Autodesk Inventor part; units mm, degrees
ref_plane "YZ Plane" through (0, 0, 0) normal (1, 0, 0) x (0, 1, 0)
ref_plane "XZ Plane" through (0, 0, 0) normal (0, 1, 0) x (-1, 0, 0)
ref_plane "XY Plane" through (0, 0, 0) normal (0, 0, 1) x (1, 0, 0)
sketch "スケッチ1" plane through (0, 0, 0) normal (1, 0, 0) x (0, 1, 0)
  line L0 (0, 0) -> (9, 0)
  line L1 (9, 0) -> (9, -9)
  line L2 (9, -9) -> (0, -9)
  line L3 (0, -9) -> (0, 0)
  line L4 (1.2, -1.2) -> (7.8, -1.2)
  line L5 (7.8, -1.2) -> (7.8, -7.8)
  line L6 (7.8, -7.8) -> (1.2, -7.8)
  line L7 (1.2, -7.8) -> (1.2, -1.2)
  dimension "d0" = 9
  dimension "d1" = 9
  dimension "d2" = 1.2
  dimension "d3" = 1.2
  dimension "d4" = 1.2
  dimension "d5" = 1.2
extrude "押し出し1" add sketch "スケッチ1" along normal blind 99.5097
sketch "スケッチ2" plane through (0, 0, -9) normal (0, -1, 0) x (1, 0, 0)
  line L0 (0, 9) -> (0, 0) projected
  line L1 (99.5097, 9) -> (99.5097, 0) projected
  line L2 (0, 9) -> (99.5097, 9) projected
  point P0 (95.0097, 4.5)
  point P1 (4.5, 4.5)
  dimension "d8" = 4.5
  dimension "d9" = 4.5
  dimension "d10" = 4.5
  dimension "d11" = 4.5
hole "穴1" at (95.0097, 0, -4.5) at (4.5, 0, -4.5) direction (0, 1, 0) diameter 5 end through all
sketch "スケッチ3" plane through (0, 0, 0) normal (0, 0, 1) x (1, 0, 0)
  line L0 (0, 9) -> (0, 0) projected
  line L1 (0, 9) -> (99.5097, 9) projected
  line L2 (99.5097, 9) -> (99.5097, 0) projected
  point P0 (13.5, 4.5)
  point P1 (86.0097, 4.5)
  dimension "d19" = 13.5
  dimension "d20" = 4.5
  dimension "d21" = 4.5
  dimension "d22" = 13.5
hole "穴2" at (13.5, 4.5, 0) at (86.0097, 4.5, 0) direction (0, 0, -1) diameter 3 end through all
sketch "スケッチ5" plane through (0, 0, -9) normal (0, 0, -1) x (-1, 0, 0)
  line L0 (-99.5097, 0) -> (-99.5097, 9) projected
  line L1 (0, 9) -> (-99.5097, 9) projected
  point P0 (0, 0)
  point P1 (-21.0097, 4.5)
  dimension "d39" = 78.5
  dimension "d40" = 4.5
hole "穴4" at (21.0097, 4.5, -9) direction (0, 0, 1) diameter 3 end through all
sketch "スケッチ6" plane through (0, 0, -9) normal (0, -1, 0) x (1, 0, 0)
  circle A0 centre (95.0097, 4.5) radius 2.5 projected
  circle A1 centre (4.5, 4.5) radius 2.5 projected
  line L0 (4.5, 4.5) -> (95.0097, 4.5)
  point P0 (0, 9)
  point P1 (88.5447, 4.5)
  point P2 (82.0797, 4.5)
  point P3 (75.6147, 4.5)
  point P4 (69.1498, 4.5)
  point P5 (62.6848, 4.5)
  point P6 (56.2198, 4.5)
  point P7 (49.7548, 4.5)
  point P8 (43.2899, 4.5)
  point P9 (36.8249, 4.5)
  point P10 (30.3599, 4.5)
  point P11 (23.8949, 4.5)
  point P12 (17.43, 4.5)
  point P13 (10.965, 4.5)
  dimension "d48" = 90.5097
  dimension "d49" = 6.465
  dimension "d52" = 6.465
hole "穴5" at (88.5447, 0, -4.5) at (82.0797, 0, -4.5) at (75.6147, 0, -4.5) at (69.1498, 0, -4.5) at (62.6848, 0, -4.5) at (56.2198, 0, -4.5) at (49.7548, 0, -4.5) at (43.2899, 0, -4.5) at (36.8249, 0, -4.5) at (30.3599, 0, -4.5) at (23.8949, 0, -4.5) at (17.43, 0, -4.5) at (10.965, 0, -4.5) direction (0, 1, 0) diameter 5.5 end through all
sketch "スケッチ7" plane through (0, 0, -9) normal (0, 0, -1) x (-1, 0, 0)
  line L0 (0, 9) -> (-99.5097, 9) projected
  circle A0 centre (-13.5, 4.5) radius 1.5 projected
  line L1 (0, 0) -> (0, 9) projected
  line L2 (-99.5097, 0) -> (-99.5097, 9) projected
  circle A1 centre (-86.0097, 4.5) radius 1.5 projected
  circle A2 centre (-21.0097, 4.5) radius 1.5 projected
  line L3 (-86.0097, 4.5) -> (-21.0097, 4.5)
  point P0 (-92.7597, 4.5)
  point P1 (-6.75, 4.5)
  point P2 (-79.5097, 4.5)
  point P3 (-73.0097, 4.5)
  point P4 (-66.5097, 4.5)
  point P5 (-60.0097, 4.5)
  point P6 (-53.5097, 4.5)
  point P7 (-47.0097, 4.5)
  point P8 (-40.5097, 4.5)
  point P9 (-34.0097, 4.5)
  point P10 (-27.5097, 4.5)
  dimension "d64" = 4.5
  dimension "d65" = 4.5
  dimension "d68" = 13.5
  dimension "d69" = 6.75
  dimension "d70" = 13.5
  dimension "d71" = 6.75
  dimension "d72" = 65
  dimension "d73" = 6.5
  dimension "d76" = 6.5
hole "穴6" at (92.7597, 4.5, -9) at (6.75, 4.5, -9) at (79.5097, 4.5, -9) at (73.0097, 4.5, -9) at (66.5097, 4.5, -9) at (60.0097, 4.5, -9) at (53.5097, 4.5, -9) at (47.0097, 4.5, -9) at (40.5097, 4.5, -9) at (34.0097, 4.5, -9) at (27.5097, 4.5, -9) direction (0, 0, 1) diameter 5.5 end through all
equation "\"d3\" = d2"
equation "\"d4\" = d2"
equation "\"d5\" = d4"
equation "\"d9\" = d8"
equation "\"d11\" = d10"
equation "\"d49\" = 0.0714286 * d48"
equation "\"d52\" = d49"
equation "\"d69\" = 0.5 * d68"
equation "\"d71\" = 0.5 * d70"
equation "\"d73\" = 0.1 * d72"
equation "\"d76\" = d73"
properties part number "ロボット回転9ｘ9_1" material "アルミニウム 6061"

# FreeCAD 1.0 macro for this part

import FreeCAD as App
import Part
import Sketcher
from FreeCAD import Vector

doc = App.newDocument("Part")
body = doc.addObject("PartDesign::Body", "Body")

# Sketch on YZ plane
sketch1 = body.newObject("Sketcher::SketchObject", "Sketch")
sketch1.AttachmentSupport = (doc.getObject("YZ_Plane"), [""])
sketch1.MapMode = "FlatFace"
sketch1.addGeometry([
    Part.LineSegment(Vector(9, 0, 0), Vector(0, 0, 0)),  # 0
    Part.LineSegment(Vector(0, 0, 0), Vector(0, -9, 0)),  # 1
    Part.LineSegment(Vector(0, -9, 0), Vector(9, -9, 0)),  # 2
    Part.LineSegment(Vector(9, -9, 0), Vector(9, 0, 0)),  # 3
    Part.LineSegment(Vector(1, -8, 0), Vector(1, -1, 0)),  # 4
    Part.LineSegment(Vector(1, -1, 0), Vector(8, -1, 0)),  # 5
    Part.LineSegment(Vector(8, -1, 0), Vector(8, -8, 0)),  # 6
    Part.LineSegment(Vector(8, -8, 0), Vector(1, -8, 0)),  # 7
], False)
sketch1.addConstraint([
    Sketcher.Constraint("Coincident", 0, 2, 1, 1),
    Sketcher.Constraint("Coincident", 1, 2, 2, 1),
    Sketcher.Constraint("Coincident", 2, 2, 3, 1),
    Sketcher.Constraint("Coincident", 3, 2, 0, 1),
    Sketcher.Constraint("Coincident", 4, 2, 5, 1),
    Sketcher.Constraint("Coincident", 5, 2, 6, 1),
    Sketcher.Constraint("Coincident", 6, 2, 7, 1),
    Sketcher.Constraint("Coincident", 7, 2, 4, 1),
    Sketcher.Constraint("Horizontal", 0),
    Sketcher.Constraint("Vertical", 1),
    Sketcher.Constraint("Horizontal", 2),
    Sketcher.Constraint("Vertical", 3),
    Sketcher.Constraint("Vertical", 4),
    Sketcher.Constraint("Horizontal", 5),
    Sketcher.Constraint("Vertical", 6),
    Sketcher.Constraint("Horizontal", 7),
    Sketcher.Constraint("Coincident", 0, 2, -1, 1),
    Sketcher.Constraint("Equal", 2, 1),
    Sketcher.Constraint("Equal", 7, 4),
    Sketcher.Constraint("DistanceX", 0, 2, 0, 1, 9.0),
    Sketcher.Constraint("DistanceX", -1, 1, 4, 2, 1.2),
    Sketcher.Constraint("DistanceY", 4, 2, -1, 1, 1.2),
    Sketcher.Constraint("DistanceX", 5, 2, 3, 2, 1.2),
])
pad1 = body.newObject("PartDesign::Pad", "Pad")
pad1.Profile = sketch1
pad1.Length = 99.5097

# Sketch on XZ plane
sketch2 = body.newObject("Sketcher::SketchObject", "Sketch001")
sketch2.AttachmentSupport = (doc.getObject("XZ_Plane"), [""])
sketch2.MapMode = "FlatFace"
sketch2.addGeometry([
    Part.Circle(Vector(95, -4.5, 0), Vector(0, 0, 1), 2.5),
    Part.Circle(Vector(4.5, -4.5, 0), Vector(0, 0, 1), 2.5),
], False)
sketch2.addConstraint([
    Sketcher.Constraint("Equal", 0, 1),
    Sketcher.Constraint("Horizontal", 0, 3, 1, 3),
    Sketcher.Constraint("Diameter", 0, 5.0),
    Sketcher.Constraint("DistanceY", 0, 3, -1, 1, 4.5),
    Sketcher.Constraint("DistanceX", -1, 1, 1, 3, 4.5),
    Sketcher.Constraint("DistanceX", -1, 1, 0, 3, 95.0097),
])
doc.recompute()
hole = body.newObject("PartDesign::Hole", "Hole")
hole.Profile = sketch2
hole.ThreadType = "None"
hole.Diameter = 5
hole.DepthType = "ThroughAll"

# Sketch on XY plane
sketch3 = body.newObject("Sketcher::SketchObject", "Sketch002")
sketch3.AttachmentSupport = (doc.getObject("XY_Plane"), [""])
sketch3.MapMode = "FlatFace"
sketch3.addGeometry([
    Part.Circle(Vector(13.5, 4.5, 0), Vector(0, 0, 1), 1.5),
    Part.Circle(Vector(86, 4.5, 0), Vector(0, 0, 1), 1.5),
], False)
sketch3.addConstraint([
    Sketcher.Constraint("Equal", 0, 1),
    Sketcher.Constraint("Horizontal", 0, 3, 1, 3),
    Sketcher.Constraint("Diameter", 0, 3.0),
    Sketcher.Constraint("DistanceX", -1, 1, 0, 3, 13.5),
    Sketcher.Constraint("DistanceY", -1, 1, 0, 3, 4.5),
    Sketcher.Constraint("DistanceX", -1, 1, 1, 3, 86.0097),
])
doc.recompute()
hole2 = body.newObject("PartDesign::Hole", "Hole001")
hole2.Profile = sketch3
hole2.ThreadType = "None"
hole2.Diameter = 3
hole2.DepthType = "ThroughAll"

# Sketch on XY plane
sketch4 = body.newObject("Sketcher::SketchObject", "Sketch003")
sketch4.AttachmentSupport = (doc.getObject("XY_Plane"), [""])
sketch4.MapMode = "FlatFace"
sketch4.AttachmentOffset = App.Placement(Vector(0, 0, -9), App.Rotation())
sketch4.addGeometry(Part.Circle(Vector(21, 4.5, 0), Vector(0, 0, 1), 1.5), False)
sketch4.addConstraint([
    Sketcher.Constraint("Diameter", 0, 3.0),
    Sketcher.Constraint("DistanceY", -1, 1, 0, 3, 4.5),
    Sketcher.Constraint("DistanceX", -1, 1, 0, 3, 21.0097),
])
doc.recompute()
hole3 = body.newObject("PartDesign::Hole", "Hole002")
hole3.Profile = sketch4
hole3.ThreadType = "None"
hole3.Diameter = 3
hole3.DepthType = "ThroughAll"
hole3.Reversed = True

# Sketch on XZ plane
sketch5 = body.newObject("Sketcher::SketchObject", "Sketch004")
sketch5.AttachmentSupport = (doc.getObject("XZ_Plane"), [""])
sketch5.MapMode = "FlatFace"
sketch5.addGeometry([
    Part.Circle(Vector(88.5, -4.5, 0), Vector(0, 0, 1), 2.8),  # 0
    Part.Circle(Vector(82.1, -4.5, 0), Vector(0, 0, 1), 2.8),  # 1
    Part.Circle(Vector(75.6, -4.5, 0), Vector(0, 0, 1), 2.8),  # 2
    Part.Circle(Vector(69.1, -4.5, 0), Vector(0, 0, 1), 2.8),  # 3
    Part.Circle(Vector(62.7, -4.5, 0), Vector(0, 0, 1), 2.8),  # 4
    Part.Circle(Vector(56.2, -4.5, 0), Vector(0, 0, 1), 2.8),  # 5
    Part.Circle(Vector(49.8, -4.5, 0), Vector(0, 0, 1), 2.8),  # 6
    Part.Circle(Vector(43.3, -4.5, 0), Vector(0, 0, 1), 2.8),  # 7
    Part.Circle(Vector(36.8, -4.5, 0), Vector(0, 0, 1), 2.8),  # 8
    Part.Circle(Vector(30.4, -4.5, 0), Vector(0, 0, 1), 2.8),  # 9
    Part.Circle(Vector(23.9, -4.5, 0), Vector(0, 0, 1), 2.8),  # 10
    Part.Circle(Vector(17.4, -4.5, 0), Vector(0, 0, 1), 2.8),  # 11
    Part.Circle(Vector(11, -4.5, 0), Vector(0, 0, 1), 2.8),  # 12
], False)
sketch5.addConstraint([
    Sketcher.Constraint("Equal", 0, 1),
    Sketcher.Constraint("Equal", 1, 2),
    Sketcher.Constraint("Equal", 2, 3),
    Sketcher.Constraint("Equal", 3, 4),
    Sketcher.Constraint("Equal", 4, 5),
    Sketcher.Constraint("Equal", 5, 6),
    Sketcher.Constraint("Equal", 6, 7),
    Sketcher.Constraint("Equal", 7, 8),
    Sketcher.Constraint("Equal", 8, 9),
    Sketcher.Constraint("Equal", 9, 10),
    Sketcher.Constraint("Equal", 10, 11),
    Sketcher.Constraint("Equal", 11, 12),
    Sketcher.Constraint("Horizontal", 0, 3, 1, 3),
    Sketcher.Constraint("Horizontal", 1, 3, 2, 3),
    Sketcher.Constraint("Horizontal", 2, 3, 3, 3),
    Sketcher.Constraint("Horizontal", 3, 3, 4, 3),
    Sketcher.Constraint("Horizontal", 4, 3, 5, 3),
    Sketcher.Constraint("Horizontal", 5, 3, 6, 3),
    Sketcher.Constraint("Horizontal", 6, 3, 7, 3),
    Sketcher.Constraint("Horizontal", 7, 3, 8, 3),
    Sketcher.Constraint("Horizontal", 8, 3, 9, 3),
    Sketcher.Constraint("Horizontal", 9, 3, 10, 3),
    Sketcher.Constraint("Horizontal", 10, 3, 11, 3),
    Sketcher.Constraint("Horizontal", 11, 3, 12, 3),
    Sketcher.Constraint("Diameter", 0, 5.5),
    Sketcher.Constraint("DistanceY", 0, 3, -1, 1, 4.5),
    Sketcher.Constraint("DistanceX", -1, 1, 7, 3, 43.29),
    Sketcher.Constraint("DistanceX", -1, 1, 9, 3, 30.36),
    Sketcher.Constraint("DistanceX", -1, 1, 11, 3, 17.43),
    Sketcher.Constraint("DistanceX", 2, 3, 0, 3, 12.93),
    Sketcher.Constraint("DistanceX", 3, 3, 1, 3, 12.93),
    Sketcher.Constraint("DistanceX", 4, 3, 2, 3, 12.93),
    Sketcher.Constraint("DistanceX", 5, 3, 3, 3, 12.93),
    Sketcher.Constraint("DistanceX", 6, 3, 4, 3, 12.93),
    Sketcher.Constraint("DistanceX", 7, 3, 5, 3, 12.93),
    Sketcher.Constraint("DistanceX", 8, 3, 6, 3, 12.93),
    Sketcher.Constraint("DistanceX", 10, 3, 8, 3, 12.93),
    Sketcher.Constraint("DistanceX", 12, 3, 10, 3, 12.93),
    Sketcher.Constraint("DistanceX", -1, 1, 8, 3, 36.825),
])
doc.recompute()
hole4 = body.newObject("PartDesign::Hole", "Hole003")
hole4.Profile = sketch5
hole4.ThreadType = "None"
hole4.Diameter = 5.5
hole4.DepthType = "ThroughAll"

# Sketch on XY plane
sketch6 = body.newObject("Sketcher::SketchObject", "Sketch005")
sketch6.AttachmentSupport = (doc.getObject("XY_Plane"), [""])
sketch6.MapMode = "FlatFace"
sketch6.AttachmentOffset = App.Placement(Vector(0, 0, -9), App.Rotation())
sketch6.addGeometry([
    Part.Circle(Vector(92.8, 4.5, 0), Vector(0, 0, 1), 2.8),  # 0
    Part.Circle(Vector(6.8, 4.5, 0), Vector(0, 0, 1), 2.8),  # 1
    Part.Circle(Vector(79.5, 4.5, 0), Vector(0, 0, 1), 2.8),  # 2
    Part.Circle(Vector(73, 4.5, 0), Vector(0, 0, 1), 2.8),  # 3
    Part.Circle(Vector(66.5, 4.5, 0), Vector(0, 0, 1), 2.8),  # 4
    Part.Circle(Vector(60, 4.5, 0), Vector(0, 0, 1), 2.8),  # 5
    Part.Circle(Vector(53.5, 4.5, 0), Vector(0, 0, 1), 2.8),  # 6
    Part.Circle(Vector(47, 4.5, 0), Vector(0, 0, 1), 2.8),  # 7
    Part.Circle(Vector(40.5, 4.5, 0), Vector(0, 0, 1), 2.8),  # 8
    Part.Circle(Vector(34, 4.5, 0), Vector(0, 0, 1), 2.8),  # 9
    Part.Circle(Vector(27.5, 4.5, 0), Vector(0, 0, 1), 2.8),  # 10
], False)
sketch6.addConstraint([
    Sketcher.Constraint("Equal", 0, 1),
    Sketcher.Constraint("Equal", 1, 2),
    Sketcher.Constraint("Equal", 2, 3),
    Sketcher.Constraint("Equal", 3, 4),
    Sketcher.Constraint("Equal", 4, 5),
    Sketcher.Constraint("Equal", 5, 6),
    Sketcher.Constraint("Equal", 6, 7),
    Sketcher.Constraint("Equal", 7, 8),
    Sketcher.Constraint("Equal", 8, 9),
    Sketcher.Constraint("Equal", 9, 10),
    Sketcher.Constraint("Horizontal", 0, 3, 1, 3),
    Sketcher.Constraint("Horizontal", 1, 3, 2, 3),
    Sketcher.Constraint("Horizontal", 2, 3, 3, 3),
    Sketcher.Constraint("Horizontal", 3, 3, 4, 3),
    Sketcher.Constraint("Horizontal", 4, 3, 5, 3),
    Sketcher.Constraint("Horizontal", 5, 3, 6, 3),
    Sketcher.Constraint("Horizontal", 6, 3, 7, 3),
    Sketcher.Constraint("Horizontal", 7, 3, 8, 3),
    Sketcher.Constraint("Horizontal", 8, 3, 9, 3),
    Sketcher.Constraint("Horizontal", 9, 3, 10, 3),
    Sketcher.Constraint("Diameter", 0, 5.5),
    Sketcher.Constraint("DistanceX", 4, 3, 2, 3, 13.0),
    Sketcher.Constraint("DistanceX", 5, 3, 3, 3, 13.0),
    Sketcher.Constraint("DistanceX", 6, 3, 4, 3, 13.0),
    Sketcher.Constraint("DistanceX", 7, 3, 5, 3, 13.0),
    Sketcher.Constraint("DistanceX", 8, 3, 6, 3, 13.0),
    Sketcher.Constraint("DistanceX", 9, 3, 7, 3, 13.0),
    Sketcher.Constraint("DistanceX", 10, 3, 8, 3, 13.0),
    Sketcher.Constraint("DistanceY", -1, 1, 0, 3, 4.5),
    Sketcher.Constraint("DistanceX", 3, 3, 2, 3, 6.5),
    Sketcher.Constraint("DistanceX", -1, 1, 1, 3, 6.75),
    Sketcher.Constraint("DistanceX", 2, 3, 0, 3, 13.25),
    Sketcher.Constraint("DistanceX", -1, 1, 0, 3, 92.7597),
])
doc.recompute()
hole5 = body.newObject("PartDesign::Hole", "Hole004")
hole5.Profile = sketch6
hole5.ThreadType = "None"
hole5.Diameter = 5.5
hole5.DepthType = "ThroughAll"
hole5.Reversed = True

doc.recompute()
